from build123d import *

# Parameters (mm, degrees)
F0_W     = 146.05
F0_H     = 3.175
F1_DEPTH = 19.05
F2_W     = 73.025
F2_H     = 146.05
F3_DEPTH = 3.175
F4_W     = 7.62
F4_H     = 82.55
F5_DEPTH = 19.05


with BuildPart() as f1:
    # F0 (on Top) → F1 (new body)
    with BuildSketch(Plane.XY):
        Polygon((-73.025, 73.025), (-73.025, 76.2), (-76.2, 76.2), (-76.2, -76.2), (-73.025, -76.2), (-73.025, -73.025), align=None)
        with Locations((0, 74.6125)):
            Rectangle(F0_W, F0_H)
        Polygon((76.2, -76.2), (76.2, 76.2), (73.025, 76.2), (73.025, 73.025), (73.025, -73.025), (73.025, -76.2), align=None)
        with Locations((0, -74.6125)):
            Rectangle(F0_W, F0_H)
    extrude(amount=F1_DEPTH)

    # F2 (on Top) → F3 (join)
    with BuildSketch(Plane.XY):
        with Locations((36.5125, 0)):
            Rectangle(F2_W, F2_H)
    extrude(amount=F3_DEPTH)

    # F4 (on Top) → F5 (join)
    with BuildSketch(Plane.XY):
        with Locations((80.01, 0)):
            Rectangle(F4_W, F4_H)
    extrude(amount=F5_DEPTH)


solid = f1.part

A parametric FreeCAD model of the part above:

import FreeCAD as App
import Part
import Sketcher
Q = App.Units.Quantity

doc = App.newDocument("Part")
body = doc.addObject("PartDesign::Body", "Body")

# Sketch on XY plane
sketch1 = body.newObject("Sketcher::SketchObject", "Sketch")
sketch1.AttachmentSupport = (doc.getObject("XY_Plane"), [""])
sketch1.MapMode = "FlatFace"
sketch1.addGeometry(Part.LineSegment(App.Vector(-76.2, 76.2, 0), App.Vector(-76.2, -76.2, 0)), False)
sketch1.addGeometry(Part.LineSegment(App.Vector(-76.2, -76.2, 0), App.Vector(76.2, -76.2, 0)), False)
sketch1.addGeometry(Part.LineSegment(App.Vector(76.2, -76.2, 0), App.Vector(76.2, 76.2, 0)), False)
sketch1.addGeometry(Part.LineSegment(App.Vector(76.2, 76.2, 0), App.Vector(-76.2, 76.2, 0)), False)
sketch1.addGeometry(Part.LineSegment(App.Vector(-73.025, -73.025, 0), App.Vector(-73.025, 73.025, 0)), False)
sketch1.addGeometry(Part.LineSegment(App.Vector(-73.025, 73.025, 0), App.Vector(73.025, 73.025, 0)), False)
sketch1.addGeometry(Part.LineSegment(App.Vector(73.025, 73.025, 0), App.Vector(73.025, -73.025, 0)), False)
sketch1.addGeometry(Part.LineSegment(App.Vector(73.025, -73.025, 0), App.Vector(-73.025, -73.025, 0)), False)
sketch1.addConstraint(Sketcher.Constraint("Coincident", 0, 2, 1, 1))
sketch1.addConstraint(Sketcher.Constraint("Coincident", 1, 2, 2, 1))
sketch1.addConstraint(Sketcher.Constraint("Coincident", 2, 2, 3, 1))
sketch1.addConstraint(Sketcher.Constraint("Coincident", 3, 2, 0, 1))
sketch1.addConstraint(Sketcher.Constraint("Coincident", 4, 2, 5, 1))
sketch1.addConstraint(Sketcher.Constraint("Coincident", 5, 2, 6, 1))
sketch1.addConstraint(Sketcher.Constraint("Coincident", 6, 2, 7, 1))
sketch1.addConstraint(Sketcher.Constraint("Coincident", 7, 2, 4, 1))
sketch1.addConstraint(Sketcher.Constraint("Vertical", 0))
sketch1.addConstraint(Sketcher.Constraint("Horizontal", 1))
sketch1.addConstraint(Sketcher.Constraint("Vertical", 2))
sketch1.addConstraint(Sketcher.Constraint("Horizontal", 3))
sketch1.addConstraint(Sketcher.Constraint("Vertical", 4))
sketch1.addConstraint(Sketcher.Constraint("Horizontal", 5))
sketch1.addConstraint(Sketcher.Constraint("Vertical", 6))
sketch1.addConstraint(Sketcher.Constraint("Horizontal", 7))
sketch1.addConstraint(Sketcher.Constraint("Symmetric", 0, 2, 2, 2, -1, 1))
sketch1.addConstraint(Sketcher.Constraint("Symmetric", 4, 2, 6, 2, -1, 1))
sketch1.addConstraint(Sketcher.Constraint("Equal", 3, 0))
sketch1.addConstraint(Sketcher.Constraint("Equal", 7, 4))
sketch1.addConstraint(Sketcher.Constraint("DistanceX", 1, 1, 1, 2, Q("6 in")))
sketch1.addConstraint(Sketcher.Constraint("DistanceX", 5, 1, 5, 2, Q("5.75 in")))
pad1 = body.newObject("PartDesign::Pad", "Pad")
pad1.Profile = sketch1
pad1.Length = Q("0.75 in")

# Sketch on XY plane
sketch2 = body.newObject("Sketcher::SketchObject", "Sketch001")
sketch2.AttachmentSupport = (doc.getObject("XY_Plane"), [""])
sketch2.MapMode = "FlatFace"
sketch2.addGeometry(Part.LineSegment(App.Vector(0, 73.025, 0), App.Vector(0, -73.025, 0)), False)
sketch2.addGeometry(Part.LineSegment(App.Vector(0, -73.025, 0), App.Vector(73.025, -73.025, 0)), False)
sketch2.addGeometry(Part.LineSegment(App.Vector(73.025, -73.025, 0), App.Vector(73.025, 73.025, 0)), False)
sketch2.addGeometry(Part.LineSegment(App.Vector(73.025, 73.025, 0), App.Vector(0, 73.025, 0)), False)
sketch2.addConstraint(Sketcher.Constraint("Coincident", 0, 2, 1, 1))
sketch2.addConstraint(Sketcher.Constraint("Coincident", 1, 2, 2, 1))
sketch2.addConstraint(Sketcher.Constraint("Coincident", 2, 2, 3, 1))
sketch2.addConstraint(Sketcher.Constraint("Coincident", 3, 2, 0, 1))
sketch2.addConstraint(Sketcher.Constraint("Vertical", 0))
sketch2.addConstraint(Sketcher.Constraint("Horizontal", 1))
sketch2.addConstraint(Sketcher.Constraint("Vertical", 2))
sketch2.addConstraint(Sketcher.Constraint("Horizontal", 3))
sketch2.addConstraint(Sketcher.Constraint("Symmetric", 0, 2, 3, 2, -1, 1))
sketch2.addConstraint(Sketcher.Constraint("DistanceY", 0, 2, 0, 1, Q("5.75 in")))
sketch2.addConstraint(Sketcher.Constraint("DistanceX", 1, 1, 1, 2, Q("2.875 in")))
pad2 = body.newObject("PartDesign::Pad", "Pad001")
pad2.Profile = sketch2
pad2.Length = Q("0.125 in")

# Sketch on XY plane
sketch3 = body.newObject("Sketcher::SketchObject", "Sketch002")
sketch3.AttachmentSupport = (doc.getObject("XY_Plane"), [""])
sketch3.MapMode = "FlatFace"
sketch3.addGeometry(Part.LineSegment(App.Vector(76.2, 41.275, 0), App.Vector(76.2, -41.275, 0)), False)
sketch3.addGeometry(Part.LineSegment(App.Vector(76.2, -41.275, 0), App.Vector(83.82, -41.275, 0)), False)
sketch3.addGeometry(Part.LineSegment(App.Vector(83.82, -41.275, 0), App.Vector(83.82, 41.275, 0)), False)
sketch3.addGeometry(Part.LineSegment(App.Vector(83.82, 41.275, 0), App.Vector(76.2, 41.275, 0)), False)
sketch3.addConstraint(Sketcher.Constraint("Coincident", 0, 2, 1, 1))
sketch3.addConstraint(Sketcher.Constraint("Coincident", 1, 2, 2, 1))
sketch3.addConstraint(Sketcher.Constraint("Coincident", 2, 2, 3, 1))
sketch3.addConstraint(Sketcher.Constraint("Coincident", 3, 2, 0, 1))
sketch3.addConstraint(Sketcher.Constraint("Vertical", 0))
sketch3.addConstraint(Sketcher.Constraint("Horizontal", 1))
sketch3.addConstraint(Sketcher.Constraint("Vertical", 2))
sketch3.addConstraint(Sketcher.Constraint("Horizontal", 3))
sketch3.addConstraint(Sketcher.Constraint("DistanceX", 1, 1, 1, 2, Q("0.3 in")))
sketch3.addConstraint(Sketcher.Constraint("DistanceX", -1, 1, 0, 2, Q("3 in")))
sketch3.addConstraint(Sketcher.Constraint("DistanceY", 0, 2, 0, 1, Q("3.25 in")))
sketch3.addConstraint(Sketcher.Constraint("DistanceY", 0, 2, -1, 1, Q("1.625 in")))
pad3 = body.newObject("PartDesign::Pad", "Pad002")
pad3.Profile = sketch3
pad3.Length = Q("0.75 in")

doc.recompute()
